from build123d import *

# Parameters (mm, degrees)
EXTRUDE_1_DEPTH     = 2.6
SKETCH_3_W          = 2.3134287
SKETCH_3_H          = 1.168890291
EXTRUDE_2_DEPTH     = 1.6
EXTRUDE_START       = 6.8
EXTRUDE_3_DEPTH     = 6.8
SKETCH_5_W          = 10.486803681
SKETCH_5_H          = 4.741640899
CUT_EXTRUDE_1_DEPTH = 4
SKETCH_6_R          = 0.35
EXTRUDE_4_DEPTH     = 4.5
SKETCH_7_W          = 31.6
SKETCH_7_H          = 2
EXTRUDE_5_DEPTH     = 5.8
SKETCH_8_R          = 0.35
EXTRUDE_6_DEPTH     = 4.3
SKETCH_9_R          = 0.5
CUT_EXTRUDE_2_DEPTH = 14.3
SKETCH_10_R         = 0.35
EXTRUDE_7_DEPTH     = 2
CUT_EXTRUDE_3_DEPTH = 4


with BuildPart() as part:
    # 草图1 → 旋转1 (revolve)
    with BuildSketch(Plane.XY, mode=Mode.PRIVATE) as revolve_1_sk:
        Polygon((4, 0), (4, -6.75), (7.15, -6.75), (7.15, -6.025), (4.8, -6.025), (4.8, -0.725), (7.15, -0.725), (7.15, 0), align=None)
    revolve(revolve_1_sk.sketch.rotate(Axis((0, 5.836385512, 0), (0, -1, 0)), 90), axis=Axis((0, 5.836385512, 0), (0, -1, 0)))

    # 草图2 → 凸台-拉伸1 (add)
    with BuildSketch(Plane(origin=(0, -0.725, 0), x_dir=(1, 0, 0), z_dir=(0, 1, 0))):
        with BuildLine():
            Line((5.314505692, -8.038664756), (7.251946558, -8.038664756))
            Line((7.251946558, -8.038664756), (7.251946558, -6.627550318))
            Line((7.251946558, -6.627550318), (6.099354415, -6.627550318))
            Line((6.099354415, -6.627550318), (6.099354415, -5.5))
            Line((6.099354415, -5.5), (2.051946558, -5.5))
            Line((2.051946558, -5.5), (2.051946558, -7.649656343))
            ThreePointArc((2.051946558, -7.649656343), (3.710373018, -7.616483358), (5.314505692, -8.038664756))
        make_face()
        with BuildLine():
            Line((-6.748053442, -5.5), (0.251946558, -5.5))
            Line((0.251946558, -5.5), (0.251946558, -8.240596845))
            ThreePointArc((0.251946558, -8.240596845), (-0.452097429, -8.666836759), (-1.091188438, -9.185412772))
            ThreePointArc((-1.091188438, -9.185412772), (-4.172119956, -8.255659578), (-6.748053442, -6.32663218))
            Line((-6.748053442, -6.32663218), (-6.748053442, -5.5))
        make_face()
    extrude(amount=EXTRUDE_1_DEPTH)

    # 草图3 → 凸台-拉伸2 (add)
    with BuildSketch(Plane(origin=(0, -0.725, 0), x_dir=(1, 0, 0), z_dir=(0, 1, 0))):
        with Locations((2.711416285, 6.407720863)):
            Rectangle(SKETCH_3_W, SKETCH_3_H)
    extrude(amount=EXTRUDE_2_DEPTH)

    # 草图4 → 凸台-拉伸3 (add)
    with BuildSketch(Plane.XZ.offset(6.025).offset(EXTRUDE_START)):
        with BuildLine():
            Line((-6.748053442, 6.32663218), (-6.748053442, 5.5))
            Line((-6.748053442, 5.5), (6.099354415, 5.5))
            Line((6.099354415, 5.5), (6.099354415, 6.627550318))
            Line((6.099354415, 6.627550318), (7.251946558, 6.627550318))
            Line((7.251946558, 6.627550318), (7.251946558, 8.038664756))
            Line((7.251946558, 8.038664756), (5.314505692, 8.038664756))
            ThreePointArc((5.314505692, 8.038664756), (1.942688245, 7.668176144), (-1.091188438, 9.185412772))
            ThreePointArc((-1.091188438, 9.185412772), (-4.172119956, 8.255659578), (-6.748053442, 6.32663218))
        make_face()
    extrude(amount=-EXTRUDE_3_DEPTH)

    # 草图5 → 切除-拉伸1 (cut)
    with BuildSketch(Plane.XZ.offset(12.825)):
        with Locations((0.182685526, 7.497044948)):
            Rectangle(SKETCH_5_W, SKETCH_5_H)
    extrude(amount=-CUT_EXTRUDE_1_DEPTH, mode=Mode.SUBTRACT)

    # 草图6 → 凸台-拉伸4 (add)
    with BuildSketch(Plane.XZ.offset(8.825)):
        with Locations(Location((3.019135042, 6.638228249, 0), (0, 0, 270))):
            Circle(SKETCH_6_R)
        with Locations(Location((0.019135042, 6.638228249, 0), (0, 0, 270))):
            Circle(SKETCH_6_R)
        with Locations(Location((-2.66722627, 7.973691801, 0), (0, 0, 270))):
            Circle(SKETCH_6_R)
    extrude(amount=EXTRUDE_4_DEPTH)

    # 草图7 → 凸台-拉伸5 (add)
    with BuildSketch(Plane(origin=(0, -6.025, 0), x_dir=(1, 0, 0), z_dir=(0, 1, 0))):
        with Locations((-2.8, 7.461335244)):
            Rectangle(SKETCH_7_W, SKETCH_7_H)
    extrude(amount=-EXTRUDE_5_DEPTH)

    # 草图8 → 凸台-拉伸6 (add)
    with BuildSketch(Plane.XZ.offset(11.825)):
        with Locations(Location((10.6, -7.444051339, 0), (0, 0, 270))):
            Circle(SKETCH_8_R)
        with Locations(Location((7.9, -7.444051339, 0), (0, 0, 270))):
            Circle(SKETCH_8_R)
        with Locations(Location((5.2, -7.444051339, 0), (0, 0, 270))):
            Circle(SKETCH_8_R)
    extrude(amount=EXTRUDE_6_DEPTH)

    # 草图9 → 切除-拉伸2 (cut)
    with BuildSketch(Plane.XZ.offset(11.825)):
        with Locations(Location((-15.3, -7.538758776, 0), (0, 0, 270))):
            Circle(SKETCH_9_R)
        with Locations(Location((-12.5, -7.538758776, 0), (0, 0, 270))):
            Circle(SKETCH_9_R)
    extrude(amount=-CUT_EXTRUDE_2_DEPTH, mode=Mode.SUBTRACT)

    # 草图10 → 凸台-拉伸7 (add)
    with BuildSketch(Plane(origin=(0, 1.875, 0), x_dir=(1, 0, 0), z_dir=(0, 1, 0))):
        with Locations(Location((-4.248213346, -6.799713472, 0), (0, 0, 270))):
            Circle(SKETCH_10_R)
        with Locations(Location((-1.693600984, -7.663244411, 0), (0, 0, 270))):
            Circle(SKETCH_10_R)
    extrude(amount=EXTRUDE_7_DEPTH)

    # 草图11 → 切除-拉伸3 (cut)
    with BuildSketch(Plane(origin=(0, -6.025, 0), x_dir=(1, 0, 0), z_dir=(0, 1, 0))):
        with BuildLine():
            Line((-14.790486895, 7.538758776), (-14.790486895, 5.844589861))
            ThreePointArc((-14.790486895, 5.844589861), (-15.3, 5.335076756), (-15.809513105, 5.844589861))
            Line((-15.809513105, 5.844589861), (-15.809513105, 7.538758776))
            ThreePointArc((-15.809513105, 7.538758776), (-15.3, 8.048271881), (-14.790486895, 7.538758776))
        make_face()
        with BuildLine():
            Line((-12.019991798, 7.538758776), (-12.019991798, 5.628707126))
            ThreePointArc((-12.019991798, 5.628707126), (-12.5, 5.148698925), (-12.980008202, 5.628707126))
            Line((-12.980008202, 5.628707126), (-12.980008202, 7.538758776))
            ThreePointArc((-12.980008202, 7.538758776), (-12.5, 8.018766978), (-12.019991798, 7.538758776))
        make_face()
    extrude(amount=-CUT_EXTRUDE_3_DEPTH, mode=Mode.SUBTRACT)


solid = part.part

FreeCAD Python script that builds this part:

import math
import FreeCAD as App
import Part
import Sketcher
from FreeCAD import Vector
Q = App.Units.Quantity

doc = App.newDocument("Part")
body = doc.addObject("PartDesign::Body", "Body")

sketch1 = body.newObject("Sketcher::SketchObject", "Sketch")
sketch1.AttachmentSupport = (doc.getObject("XY_Plane"), [""])
sketch1.MapMode = "FlatFace"
sketch1.addGeometry([
    Part.LineSegment(Vector(4, 0, 0), Vector(4, -6.75, 0)),
    Part.LineSegment(Vector(4, -6.75, 0), Vector(7.15, -6.75, 0)),
    Part.LineSegment(Vector(7.15, -6.75, 0), Vector(7.15, -6.025, 0)),
    Part.LineSegment(Vector(7.15, -6.025, 0), Vector(4.8, -6.025, 0)),
    Part.LineSegment(Vector(4.8, -6.025, 0), Vector(4.8, -0.725, 0)),
    Part.LineSegment(Vector(4.8, -0.725, 0), Vector(7.15, -0.725, 0)),
    Part.LineSegment(Vector(7.15, -0.725, 0), Vector(7.15, 0, 0)),
    Part.LineSegment(Vector(7.15, 0, 0), Vector(4, 0, 0)),
], False)
sketch1.addConstraint([
    Sketcher.Constraint("Coincident", 0, 2, 1, 1),
    Sketcher.Constraint("Coincident", 1, 2, 2, 1),
    Sketcher.Constraint("Coincident", 2, 2, 3, 1),
    Sketcher.Constraint("Coincident", 3, 2, 4, 1),
    Sketcher.Constraint("Coincident", 4, 2, 5, 1),
    Sketcher.Constraint("Coincident", 5, 2, 6, 1),
    Sketcher.Constraint("Coincident", 6, 2, 7, 1),
    Sketcher.Constraint("Coincident", 7, 2, 0, 1),
    Sketcher.Constraint("Vertical", 0),
    Sketcher.Constraint("Horizontal", 1),
    Sketcher.Constraint("Vertical", 2),
    Sketcher.Constraint("Horizontal", 3),
    Sketcher.Constraint("Vertical", 4),
    Sketcher.Constraint("Horizontal", 5),
    Sketcher.Constraint("Vertical", 6),
    Sketcher.Constraint("Horizontal", 7),
    Sketcher.Constraint("PointOnObject", 6, 2, -1),
    Sketcher.Constraint("Vertical", 2, 2, 5, 2),
    Sketcher.Constraint("Equal", 2, 6),
    Sketcher.Constraint("DistanceY", 4, 1, 4, 2, Q("5.3 mm")),
    Sketcher.Constraint("DistanceX", -1, 1, 0, 2, Q("4 mm")),
    Sketcher.Constraint("DistanceX", 1, 1, 1, 2, Q("3.15 mm")),
    Sketcher.Constraint("DistanceX", 3, 2, 3, 1, Q("2.35 mm")),
    Sketcher.Constraint("DistanceY", 0, 2, 0, 1, Q("6.75 mm")),
])
revolution = body.newObject("PartDesign::Revolution", "Revolution")
revolution.Profile = sketch1
revolution.ReferenceAxis = (sketch1, ["V_Axis"])
revolution.Angle = 360

sketch2 = body.newObject("Sketcher::SketchObject", "Sketch001")
sketch2.AttachmentSupport = (doc.getObject("XZ_Plane"), [""])
sketch2.MapMode = "FlatFace"
sketch2.AttachmentOffset = App.Placement(Vector(0, 0, 0.725), App.Rotation())
sketch2.addGeometry([
    Part.LineSegment(Vector(5.314506, 8.038665, 0), Vector(7.251947, 8.038665, 0)),
    Part.LineSegment(Vector(7.251947, 8.038665, 0), Vector(7.251947, 6.62755, 0)),
    Part.LineSegment(Vector(7.251947, 6.62755, 0), Vector(6.099354, 6.62755, 0)),
    Part.LineSegment(Vector(6.099354, 6.62755, 0), Vector(6.099354, 5.5, 0)),
    Part.LineSegment(Vector(6.099354, 5.5, 0), Vector(2.051947, 5.5, 0)),
    Part.LineSegment(Vector(2.051947, 5.5, 0), Vector(2.051947, 7.649656, 0)),
    Part.ArcOfCircle(Part.Circle(Vector(3, 13.574282, 0), Vector(0, 0, 1), 6), math.radians(-99.091345), math.radians(-67.309632)),
    Part.LineSegment(Vector(0.251947, 5.5, 0), Vector(-6.748053, 5.5, 0)),
    Part.LineSegment(Vector(-6.748053, 5.5, 0), Vector(-6.748053, 6.326632, 0)),
    Part.ArcOfCircle(Part.Circle(Vector(0, 0, 0), Vector(0, 0, 1), 9.25), math.radians(96.774747), math.radians(136.84611)),
    Part.ArcOfCircle(Part.Circle(Vector(3, 13.574282, 0), Vector(0, 0, 1), 6), math.radians(-132.989533), math.radians(-117.2587)),
    Part.LineSegment(Vector(0.251947, 8.240597, 0), Vector(0.251947, 5.5, 0)),
], False)
sketch2.addConstraint([
    Sketcher.Constraint("Coincident", 0, 2, 1, 1),
    Sketcher.Constraint("Coincident", 1, 2, 2, 1),
    Sketcher.Constraint("Coincident", 2, 2, 3, 1),
    Sketcher.Constraint("Coincident", 3, 2, 4, 1),
    Sketcher.Constraint("Coincident", 4, 2, 5, 1),
    Sketcher.Constraint("Coincident", 5, 2, 6, 1),
    Sketcher.Constraint("Coincident", 6, 2, 0, 1),
    Sketcher.Constraint("Coincident", 7, 2, 8, 1),
    Sketcher.Constraint("Coincident", 8, 2, 9, 2),
    Sketcher.Constraint("Coincident", 9, 1, 10, 1),
    Sketcher.Constraint("Coincident", 10, 2, 11, 1),
    Sketcher.Constraint("Coincident", 11, 2, 7, 1),
    Sketcher.Constraint("Horizontal", 0),
    Sketcher.Constraint("Vertical", 1),
    Sketcher.Constraint("Horizontal", 2),
    Sketcher.Constraint("Vertical", 3),
    Sketcher.Constraint("Horizontal", 4),
    Sketcher.Constraint("Vertical", 5),
    Sketcher.Constraint("Horizontal", 7),
    Sketcher.Constraint("Vertical", 8),
    Sketcher.Constraint("Vertical", 11),
    Sketcher.Constraint("Coincident", 9, 3, -1, 1),
    Sketcher.Constraint("Coincident", 10, 3, 6, 3),
    Sketcher.Constraint("Equal", 6, 10),
    Sketcher.Constraint("Horizontal", 4, 2, 7, 2),
    Sketcher.Constraint("Radius", 6, Q("6 mm")),
    Sketcher.Constraint("DistanceX", 7, 2, 7, 1, Q("7 mm")),
    Sketcher.Constraint("Radius", 9, Q("9.25 mm")),
    Sketcher.Constraint("DistanceX", -1, 1, 6, 3, Q("3 mm")),
    Sketcher.Constraint("DistanceY", -1, 1, 3, 2, Q("5.5 mm")),
    Sketcher.Constraint("DistanceX", 4, 2, 1, 2, Q("5.2 mm")),
    Sketcher.Constraint("DistanceX", 7, 2, 4, 2, Q("8.8 mm")),
    Sketcher.Constraint("DistanceX", 0, 1, 0, 2, Q("1.937441 mm")),
    Sketcher.Constraint("DistanceY", 3, 2, 3, 1, Q("1.12755 mm")),
    Sketcher.Constraint("DistanceX", 2, 2, 2, 1, Q("1.152592 mm")),
    Sketcher.Constraint("DistanceY", 1, 2, 1, 1, Q("1.411114 mm")),
    Sketcher.Constraint("DistanceY", 5, 1, 5, 2, Q("2.149656 mm")),
])
pad1 = body.newObject("PartDesign::Pad", "Pad")
pad1.Profile = sketch2
pad1.Length = 2.6
pad1.Reversed = True

sketch3 = body.newObject("Sketcher::SketchObject", "Sketch002")
sketch3.AttachmentSupport = (doc.getObject("XZ_Plane"), [""])
sketch3.MapMode = "FlatFace"
sketch3.AttachmentOffset = App.Placement(Vector(0, 0, 0.725), App.Rotation())
sketch3.addGeometry([
    Part.LineSegment(Vector(1.554702, -6.992166, 0), Vector(1.554702, -5.823276, 0)),
    Part.LineSegment(Vector(1.554702, -5.823276, 0), Vector(3.868131, -5.823276, 0)),
    Part.LineSegment(Vector(3.868131, -5.823276, 0), Vector(3.868131, -6.992166, 0)),
    Part.LineSegment(Vector(3.868131, -6.992166, 0), Vector(1.554702, -6.992166, 0)),
], False)
sketch3.addConstraint([
    Sketcher.Constraint("Coincident", 0, 2, 1, 1),
    Sketcher.Constraint("Coincident", 1, 2, 2, 1),
    Sketcher.Constraint("Coincident", 2, 2, 3, 1),
    Sketcher.Constraint("Coincident", 3, 2, 0, 1),
    Sketcher.Constraint("Vertical", 0),
    Sketcher.Constraint("Horizontal", 1),
    Sketcher.Constraint("Vertical", 2),
    Sketcher.Constraint("Horizontal", 3),
    Sketcher.Constraint("DistanceX", 1, 1, 1, 2, Q("2.313429 mm")),
    Sketcher.Constraint("DistanceY", 0, 1, 0, 2, Q("1.16889 mm")),
    Sketcher.Constraint("DistanceX", -1, 1, 0, 2, Q("1.554702 mm")),
    Sketcher.Constraint("DistanceY", 0, 2, -1, 1, Q("5.823276 mm")),
])
pad2 = body.newObject("PartDesign::Pad", "Pad001")
pad2.Profile = sketch3
pad2.Length = 1.6
pad2.Reversed = True

sketch4 = body.newObject("Sketcher::SketchObject", "Sketch003")
sketch4.AttachmentSupport = (doc.getObject("XZ_Plane"), [""])
sketch4.MapMode = "FlatFace"
sketch4.AttachmentOffset = App.Placement(Vector(0, 0, 12.825), App.Rotation())
sketch4.addGeometry([
    Part.LineSegment(Vector(-6.748053, 6.326632, 0), Vector(-6.748053, 5.5, 0)),
    Part.LineSegment(Vector(-6.748053, 5.5, 0), Vector(6.099354, 5.5, 0)),
    Part.LineSegment(Vector(6.099354, 5.5, 0), Vector(6.099354, 6.62755, 0)),
    Part.LineSegment(Vector(6.099354, 6.62755, 0), Vector(7.251947, 6.62755, 0)),
    Part.LineSegment(Vector(7.251947, 6.62755, 0), Vector(7.251947, 8.038665, 0)),
    Part.LineSegment(Vector(7.251947, 8.038665, 0), Vector(5.314506, 8.038665, 0)),
    Part.ArcOfCircle(Part.Circle(Vector(3, 13.574282, 0), Vector(0, 0, 1), 6), math.radians(-132.989533), math.radians(-67.309632)),
    Part.ArcOfCircle(Part.Circle(Vector(0, 0, 0), Vector(0, 0, 1), 9.25), math.radians(96.774747), math.radians(136.84611)),
], False)
sketch4.addConstraint([
    Sketcher.Constraint("Coincident", 0, 2, 1, 1),
    Sketcher.Constraint("Coincident", 1, 2, 2, 1),
    Sketcher.Constraint("Coincident", 2, 2, 3, 1),
    Sketcher.Constraint("Coincident", 3, 2, 4, 1),
    Sketcher.Constraint("Coincident", 4, 2, 5, 1),
    Sketcher.Constraint("Coincident", 5, 2, 6, 2),
    Sketcher.Constraint("Coincident", 6, 1, 7, 1),
    Sketcher.Constraint("Coincident", 7, 2, 0, 1),
    Sketcher.Constraint("Vertical", 0),
    Sketcher.Constraint("Horizontal", 1),
    Sketcher.Constraint("Vertical", 2),
    Sketcher.Constraint("Horizontal", 3),
    Sketcher.Constraint("Vertical", 4),
    Sketcher.Constraint("Horizontal", 5),
    Sketcher.Constraint("Coincident", 7, 3, -1, 1),
    Sketcher.Constraint("Radius", 6, Q("6 mm")),
    Sketcher.Constraint("Radius", 7, Q("9.25 mm")),
    Sketcher.Constraint("DistanceX", -1, 1, 6, 3, Q("3 mm")),
    Sketcher.Constraint("DistanceX", 0, 2, 3, 2, Q("14 mm")),
    Sketcher.Constraint("DistanceY", -1, 1, 0, 2, Q("5.5 mm")),
    Sketcher.Constraint("DistanceX", 5, 2, 5, 1, Q("1.937441 mm")),
    Sketcher.Constraint("DistanceY", 2, 1, 2, 2, Q("1.12755 mm")),
    Sketcher.Constraint("DistanceX", 1, 1, 1, 2, Q("12.847408 mm")),
    Sketcher.Constraint("DistanceY", 0, 2, 0, 1, Q("0.826632 mm")),
    Sketcher.Constraint("DistanceY", 4, 1, 4, 2, Q("1.411114 mm")),
])
pad3 = body.newObject("PartDesign::Pad", "Pad002")
pad3.Profile = sketch4
pad3.Length = 6.8
pad3.Reversed = True

sketch5 = body.newObject("Sketcher::SketchObject", "Sketch004")
sketch5.AttachmentSupport = (doc.getObject("XZ_Plane"), [""])
sketch5.MapMode = "FlatFace"
sketch5.AttachmentOffset = App.Placement(Vector(0, 0, 12.825), App.Rotation())
sketch5.addGeometry([
    Part.LineSegment(Vector(-5.060716, 9.867865, 0), Vector(-5.060716, 5.126224, 0)),
    Part.LineSegment(Vector(-5.060716, 5.126224, 0), Vector(5.426087, 5.126224, 0)),
    Part.LineSegment(Vector(5.426087, 5.126224, 0), Vector(5.426087, 9.867865, 0)),
    Part.LineSegment(Vector(5.426087, 9.867865, 0), Vector(-5.060716, 9.867865, 0)),
], False)
sketch5.addConstraint([
    Sketcher.Constraint("Coincident", 0, 2, 1, 1),
    Sketcher.Constraint("Coincident", 1, 2, 2, 1),
    Sketcher.Constraint("Coincident", 2, 2, 3, 1),
    Sketcher.Constraint("Coincident", 3, 2, 0, 1),
    Sketcher.Constraint("Vertical", 0),
    Sketcher.Constraint("Horizontal", 1),
    Sketcher.Constraint("Vertical", 2),
    Sketcher.Constraint("Horizontal", 3),
    Sketcher.Constraint("DistanceY", 0, 2, 0, 1, Q("4.741641 mm")),
    Sketcher.Constraint("DistanceX", 1, 1, 1, 2, Q("10.486804 mm")),
    Sketcher.Constraint("DistanceX", 0, 2, -1, 1, Q("5.060716 mm")),
    Sketcher.Constraint("DistanceY", -1, 1, 0, 2, Q("5.126224 mm")),
])
pocket1 = body.newObject("PartDesign::Pocket", "Pocket")
pocket1.Profile = sketch5
pocket1.Length = 4

sketch6 = body.newObject("Sketcher::SketchObject", "Sketch005")
sketch6.AttachmentSupport = (doc.getObject("XZ_Plane"), [""])
sketch6.MapMode = "FlatFace"
sketch6.AttachmentOffset = App.Placement(Vector(0, 0, 8.825), App.Rotation())
sketch6.addGeometry([
    Part.Circle(Vector(3.019135, 6.638228, 0), Vector(0, 0, 1), 0.35),
    Part.Circle(Vector(0.019135, 6.638228, 0), Vector(0, 0, 1), 0.35),
    Part.Circle(Vector(-2.667226, 7.973692, 0), Vector(0, 0, 1), 0.35),
], False)
sketch6.addConstraint([
    Sketcher.Constraint("Equal", 0, 1),
    Sketcher.Constraint("Equal", 1, 2),
    Sketcher.Constraint("Horizontal", 0, 3, 1, 3),
    Sketcher.Constraint("Diameter", 0, Q("0.7 mm")),
    Sketcher.Constraint("DistanceX", 1, 3, 0, 3, Q("3 mm")),
    Sketcher.Constraint("DistanceY", -1, 1, 0, 3, Q("6.638228 mm")),
    Sketcher.Constraint("DistanceY", -1, 1, 2, 3, Q("7.973692 mm")),
    Sketcher.Constraint("DistanceX", 2, 3, 1, 3, Q("2.686361 mm")),
    Sketcher.Constraint("DistanceX", -1, 1, 0, 3, Q("3.019135 mm")),
])
pad4 = body.newObject("PartDesign::Pad", "Pad003")
pad4.Profile = sketch6
pad4.Length = 4.5

sketch7 = body.newObject("Sketcher::SketchObject", "Sketch006")
sketch7.AttachmentSupport = (doc.getObject("XZ_Plane"), [""])
sketch7.MapMode = "FlatFace"
sketch7.AttachmentOffset = App.Placement(Vector(0, 0, 6.025), App.Rotation())
sketch7.addGeometry([
    Part.LineSegment(Vector(-18.6, -8.461335, 0), Vector(-18.6, -6.461335, 0)),
    Part.LineSegment(Vector(-18.6, -6.461335, 0), Vector(13, -6.461335, 0)),
    Part.LineSegment(Vector(13, -6.461335, 0), Vector(13, -8.461335, 0)),
    Part.LineSegment(Vector(13, -8.461335, 0), Vector(-18.6, -8.461335, 0)),
], False)
sketch7.addConstraint([
    Sketcher.Constraint("Coincident", 0, 2, 1, 1),
    Sketcher.Constraint("Coincident", 1, 2, 2, 1),
    Sketcher.Constraint("Coincident", 2, 2, 3, 1),
    Sketcher.Constraint("Coincident", 3, 2, 0, 1),
    Sketcher.Constraint("Vertical", 0),
    Sketcher.Constraint("Horizontal", 1),
    Sketcher.Constraint("Vertical", 2),
    Sketcher.Constraint("Horizontal", 3),
    Sketcher.Constraint("DistanceY", 0, 1, 0, 2, Q("2 mm")),
    Sketcher.Constraint("DistanceX", 1, 1, 1, 2, Q("31.6 mm")),
    Sketcher.Constraint("DistanceX", -1, 1, 1, 2, Q("13 mm")),
    Sketcher.Constraint("DistanceY", 0, 2, -1, 1, Q("6.461335 mm")),
])
pad5 = body.newObject("PartDesign::Pad", "Pad004")
pad5.Profile = sketch7
pad5.Length = 5.8

sketch8 = body.newObject("Sketcher::SketchObject", "Sketch007")
sketch8.AttachmentSupport = (doc.getObject("XZ_Plane"), [""])
sketch8.MapMode = "FlatFace"
sketch8.AttachmentOffset = App.Placement(Vector(0, 0, 11.825), App.Rotation())
sketch8.addGeometry([
    Part.Circle(Vector(10.6, -7.444051, 0), Vector(0, 0, 1), 0.35),
    Part.Circle(Vector(7.9, -7.444051, 0), Vector(0, 0, 1), 0.35),
    Part.Circle(Vector(5.2, -7.444051, 0), Vector(0, 0, 1), 0.35),
], False)
sketch8.addConstraint([
    Sketcher.Constraint("Equal", 0, 1),
    Sketcher.Constraint("Equal", 1, 2),
    Sketcher.Constraint("Horizontal", 0, 3, 1, 3),
    Sketcher.Constraint("Horizontal", 1, 3, 2, 3),
    Sketcher.Constraint("Diameter", 0, Q("0.7 mm")),
    Sketcher.Constraint("DistanceX", -1, 1, 0, 3, Q("10.6 mm")),
    Sketcher.Constraint("DistanceX", -1, 1, 1, 3, Q("7.9 mm")),
    Sketcher.Constraint("DistanceX", -1, 1, 2, 3, Q("5.2 mm")),
    Sketcher.Constraint("DistanceY", 0, 3, -1, 1, Q("7.444051 mm")),
])
pad6 = body.newObject("PartDesign::Pad", "Pad005")
pad6.Profile = sketch8
pad6.Length = 4.3

sketch9 = body.newObject("Sketcher::SketchObject", "Sketch008")
sketch9.AttachmentSupport = (doc.getObject("XZ_Plane"), [""])
sketch9.MapMode = "FlatFace"
sketch9.AttachmentOffset = App.Placement(Vector(0, 0, 11.825), App.Rotation())
sketch9.addGeometry([
    Part.Circle(Vector(-15.3, -7.538759, 0), Vector(0, 0, 1), 0.5),
    Part.Circle(Vector(-12.5, -7.538759, 0), Vector(0, 0, 1), 0.5),
], False)
sketch9.addConstraint([
    Sketcher.Constraint("Equal", 0, 1),
    Sketcher.Constraint("Horizontal", 0, 3, 1, 3),
    Sketcher.Constraint("Diameter", 0, Q("1 mm")),
    Sketcher.Constraint("DistanceX", 0, 3, -1, 1, Q("15.3 mm")),
    Sketcher.Constraint("DistanceX", 1, 3, -1, 1, Q("12.5 mm")),
    Sketcher.Constraint("DistanceY", 0, 3, -1, 1, Q("7.538759 mm")),
])
pocket2 = body.newObject("PartDesign::Pocket", "Pocket001")
pocket2.Profile = sketch9
pocket2.Length = 14.3

sketch10 = body.newObject("Sketcher::SketchObject", "Sketch009")
sketch10.AttachmentSupport = (doc.getObject("XZ_Plane"), [""])
sketch10.MapMode = "FlatFace"
sketch10.AttachmentOffset = App.Placement(Vector(0, 0, -1.875), App.Rotation())
sketch10.addGeometry([
    Part.Circle(Vector(-4.248213, 6.799713, 0), Vector(0, 0, 1), 0.35),
    Part.Circle(Vector(-1.693601, 7.663244, 0), Vector(0, 0, 1), 0.35),
], False)
sketch10.addConstraint([
    Sketcher.Constraint("Equal", 0, 1),
    Sketcher.Constraint("Diameter", 0, Q("0.7 mm")),
    Sketcher.Constraint("DistanceX", 1, 3, -1, 1, Q("1.693601 mm")),
    Sketcher.Constraint("DistanceY", 0, 3, 1, 3, Q("0.863531 mm")),
    Sketcher.Constraint("DistanceX", 0, 3, -1, 1, Q("4.248213 mm")),
    Sketcher.Constraint("DistanceY", -1, 1, 0, 3, Q("6.799713 mm")),
])
pad7 = body.newObject("PartDesign::Pad", "Pad006")
pad7.Profile = sketch10
pad7.Length = 2
pad7.Reversed = True

sketch11 = body.newObject("Sketcher::SketchObject", "Sketch010")
sketch11.AttachmentSupport = (doc.getObject("XZ_Plane"), [""])
sketch11.MapMode = "FlatFace"
sketch11.AttachmentOffset = App.Placement(Vector(0, 0, 6.025), App.Rotation())
sketch11.addGeometry([
    Part.LineSegment(Vector(-14.790487, -5.84459, 0), Vector(-14.790487, -7.538759, 0)),
    Part.ArcOfCircle(Part.Circle(Vector(-15.3, -7.538759, 0), Vector(0, 0, 1), 0.509513), math.radians(180), math.radians(360)),
    Part.LineSegment(Vector(-15.809513, -7.538759, 0), Vector(-15.809513, -5.84459, 0)),
    Part.ArcOfCircle(Part.Circle(Vector(-15.3, -5.84459, 0), Vector(0, 0, 1), 0.509513), math.radians(0), math.radians(180)),
    Part.LineSegment(Vector(-12.019992, -5.628707, 0), Vector(-12.019992, -7.538759, 0)),
    Part.ArcOfCircle(Part.Circle(Vector(-12.5, -7.538759, 0), Vector(0, 0, 1), 0.480008), math.radians(180), math.radians(360)),
    Part.LineSegment(Vector(-12.980008, -7.538759, 0), Vector(-12.980008, -5.628707, 0)),
    Part.ArcOfCircle(Part.Circle(Vector(-12.5, -5.628707, 0), Vector(0, 0, 1), 0.480008), math.radians(0), math.radians(180)),
], False)
sketch11.addConstraint([
    Sketcher.Constraint("Tangent", 0, 2, 1, 2),
    Sketcher.Constraint("Tangent", 1, 1, 2, 1),
    Sketcher.Constraint("Tangent", 2, 2, 3, 2),
    Sketcher.Constraint("Tangent", 3, 1, 0, 1),
    Sketcher.Constraint("Tangent", 4, 2, 5, 2),
    Sketcher.Constraint("Tangent", 5, 1, 6, 1),
    Sketcher.Constraint("Tangent", 6, 2, 7, 2),
    Sketcher.Constraint("Tangent", 7, 1, 4, 1),
    Sketcher.Constraint("Vertical", 0),
    Sketcher.Constraint("Vertical", 2),
    Sketcher.Constraint("Vertical", 4),
    Sketcher.Constraint("Vertical", 6),
    Sketcher.Constraint("Horizontal", 1, 3, 5, 3),
    Sketcher.Constraint("DistanceX", 1, 3, -1, 1, Q("15.3 mm")),
    Sketcher.Constraint("DistanceX", 5, 3, -1, 1, Q("12.5 mm")),
    Sketcher.Constraint("Radius", 5, Q("0.480008 mm")),
    Sketcher.Constraint("Radius", 1, Q("0.509513 mm")),
    Sketcher.Constraint("DistanceY", 0, 2, 0, 1, Q("1.694169 mm")),
    Sketcher.Constraint("DistanceY", 4, 2, 4, 1, Q("1.910052 mm")),
    Sketcher.Constraint("DistanceY", 1, 3, -1, 1, Q("7.538759 mm")),
])
pocket3 = body.newObject("PartDesign::Pocket", "Pocket002")
pocket3.Profile = sketch11
pocket3.Length = 4
pocket3.Reversed = True

doc.recompute()
